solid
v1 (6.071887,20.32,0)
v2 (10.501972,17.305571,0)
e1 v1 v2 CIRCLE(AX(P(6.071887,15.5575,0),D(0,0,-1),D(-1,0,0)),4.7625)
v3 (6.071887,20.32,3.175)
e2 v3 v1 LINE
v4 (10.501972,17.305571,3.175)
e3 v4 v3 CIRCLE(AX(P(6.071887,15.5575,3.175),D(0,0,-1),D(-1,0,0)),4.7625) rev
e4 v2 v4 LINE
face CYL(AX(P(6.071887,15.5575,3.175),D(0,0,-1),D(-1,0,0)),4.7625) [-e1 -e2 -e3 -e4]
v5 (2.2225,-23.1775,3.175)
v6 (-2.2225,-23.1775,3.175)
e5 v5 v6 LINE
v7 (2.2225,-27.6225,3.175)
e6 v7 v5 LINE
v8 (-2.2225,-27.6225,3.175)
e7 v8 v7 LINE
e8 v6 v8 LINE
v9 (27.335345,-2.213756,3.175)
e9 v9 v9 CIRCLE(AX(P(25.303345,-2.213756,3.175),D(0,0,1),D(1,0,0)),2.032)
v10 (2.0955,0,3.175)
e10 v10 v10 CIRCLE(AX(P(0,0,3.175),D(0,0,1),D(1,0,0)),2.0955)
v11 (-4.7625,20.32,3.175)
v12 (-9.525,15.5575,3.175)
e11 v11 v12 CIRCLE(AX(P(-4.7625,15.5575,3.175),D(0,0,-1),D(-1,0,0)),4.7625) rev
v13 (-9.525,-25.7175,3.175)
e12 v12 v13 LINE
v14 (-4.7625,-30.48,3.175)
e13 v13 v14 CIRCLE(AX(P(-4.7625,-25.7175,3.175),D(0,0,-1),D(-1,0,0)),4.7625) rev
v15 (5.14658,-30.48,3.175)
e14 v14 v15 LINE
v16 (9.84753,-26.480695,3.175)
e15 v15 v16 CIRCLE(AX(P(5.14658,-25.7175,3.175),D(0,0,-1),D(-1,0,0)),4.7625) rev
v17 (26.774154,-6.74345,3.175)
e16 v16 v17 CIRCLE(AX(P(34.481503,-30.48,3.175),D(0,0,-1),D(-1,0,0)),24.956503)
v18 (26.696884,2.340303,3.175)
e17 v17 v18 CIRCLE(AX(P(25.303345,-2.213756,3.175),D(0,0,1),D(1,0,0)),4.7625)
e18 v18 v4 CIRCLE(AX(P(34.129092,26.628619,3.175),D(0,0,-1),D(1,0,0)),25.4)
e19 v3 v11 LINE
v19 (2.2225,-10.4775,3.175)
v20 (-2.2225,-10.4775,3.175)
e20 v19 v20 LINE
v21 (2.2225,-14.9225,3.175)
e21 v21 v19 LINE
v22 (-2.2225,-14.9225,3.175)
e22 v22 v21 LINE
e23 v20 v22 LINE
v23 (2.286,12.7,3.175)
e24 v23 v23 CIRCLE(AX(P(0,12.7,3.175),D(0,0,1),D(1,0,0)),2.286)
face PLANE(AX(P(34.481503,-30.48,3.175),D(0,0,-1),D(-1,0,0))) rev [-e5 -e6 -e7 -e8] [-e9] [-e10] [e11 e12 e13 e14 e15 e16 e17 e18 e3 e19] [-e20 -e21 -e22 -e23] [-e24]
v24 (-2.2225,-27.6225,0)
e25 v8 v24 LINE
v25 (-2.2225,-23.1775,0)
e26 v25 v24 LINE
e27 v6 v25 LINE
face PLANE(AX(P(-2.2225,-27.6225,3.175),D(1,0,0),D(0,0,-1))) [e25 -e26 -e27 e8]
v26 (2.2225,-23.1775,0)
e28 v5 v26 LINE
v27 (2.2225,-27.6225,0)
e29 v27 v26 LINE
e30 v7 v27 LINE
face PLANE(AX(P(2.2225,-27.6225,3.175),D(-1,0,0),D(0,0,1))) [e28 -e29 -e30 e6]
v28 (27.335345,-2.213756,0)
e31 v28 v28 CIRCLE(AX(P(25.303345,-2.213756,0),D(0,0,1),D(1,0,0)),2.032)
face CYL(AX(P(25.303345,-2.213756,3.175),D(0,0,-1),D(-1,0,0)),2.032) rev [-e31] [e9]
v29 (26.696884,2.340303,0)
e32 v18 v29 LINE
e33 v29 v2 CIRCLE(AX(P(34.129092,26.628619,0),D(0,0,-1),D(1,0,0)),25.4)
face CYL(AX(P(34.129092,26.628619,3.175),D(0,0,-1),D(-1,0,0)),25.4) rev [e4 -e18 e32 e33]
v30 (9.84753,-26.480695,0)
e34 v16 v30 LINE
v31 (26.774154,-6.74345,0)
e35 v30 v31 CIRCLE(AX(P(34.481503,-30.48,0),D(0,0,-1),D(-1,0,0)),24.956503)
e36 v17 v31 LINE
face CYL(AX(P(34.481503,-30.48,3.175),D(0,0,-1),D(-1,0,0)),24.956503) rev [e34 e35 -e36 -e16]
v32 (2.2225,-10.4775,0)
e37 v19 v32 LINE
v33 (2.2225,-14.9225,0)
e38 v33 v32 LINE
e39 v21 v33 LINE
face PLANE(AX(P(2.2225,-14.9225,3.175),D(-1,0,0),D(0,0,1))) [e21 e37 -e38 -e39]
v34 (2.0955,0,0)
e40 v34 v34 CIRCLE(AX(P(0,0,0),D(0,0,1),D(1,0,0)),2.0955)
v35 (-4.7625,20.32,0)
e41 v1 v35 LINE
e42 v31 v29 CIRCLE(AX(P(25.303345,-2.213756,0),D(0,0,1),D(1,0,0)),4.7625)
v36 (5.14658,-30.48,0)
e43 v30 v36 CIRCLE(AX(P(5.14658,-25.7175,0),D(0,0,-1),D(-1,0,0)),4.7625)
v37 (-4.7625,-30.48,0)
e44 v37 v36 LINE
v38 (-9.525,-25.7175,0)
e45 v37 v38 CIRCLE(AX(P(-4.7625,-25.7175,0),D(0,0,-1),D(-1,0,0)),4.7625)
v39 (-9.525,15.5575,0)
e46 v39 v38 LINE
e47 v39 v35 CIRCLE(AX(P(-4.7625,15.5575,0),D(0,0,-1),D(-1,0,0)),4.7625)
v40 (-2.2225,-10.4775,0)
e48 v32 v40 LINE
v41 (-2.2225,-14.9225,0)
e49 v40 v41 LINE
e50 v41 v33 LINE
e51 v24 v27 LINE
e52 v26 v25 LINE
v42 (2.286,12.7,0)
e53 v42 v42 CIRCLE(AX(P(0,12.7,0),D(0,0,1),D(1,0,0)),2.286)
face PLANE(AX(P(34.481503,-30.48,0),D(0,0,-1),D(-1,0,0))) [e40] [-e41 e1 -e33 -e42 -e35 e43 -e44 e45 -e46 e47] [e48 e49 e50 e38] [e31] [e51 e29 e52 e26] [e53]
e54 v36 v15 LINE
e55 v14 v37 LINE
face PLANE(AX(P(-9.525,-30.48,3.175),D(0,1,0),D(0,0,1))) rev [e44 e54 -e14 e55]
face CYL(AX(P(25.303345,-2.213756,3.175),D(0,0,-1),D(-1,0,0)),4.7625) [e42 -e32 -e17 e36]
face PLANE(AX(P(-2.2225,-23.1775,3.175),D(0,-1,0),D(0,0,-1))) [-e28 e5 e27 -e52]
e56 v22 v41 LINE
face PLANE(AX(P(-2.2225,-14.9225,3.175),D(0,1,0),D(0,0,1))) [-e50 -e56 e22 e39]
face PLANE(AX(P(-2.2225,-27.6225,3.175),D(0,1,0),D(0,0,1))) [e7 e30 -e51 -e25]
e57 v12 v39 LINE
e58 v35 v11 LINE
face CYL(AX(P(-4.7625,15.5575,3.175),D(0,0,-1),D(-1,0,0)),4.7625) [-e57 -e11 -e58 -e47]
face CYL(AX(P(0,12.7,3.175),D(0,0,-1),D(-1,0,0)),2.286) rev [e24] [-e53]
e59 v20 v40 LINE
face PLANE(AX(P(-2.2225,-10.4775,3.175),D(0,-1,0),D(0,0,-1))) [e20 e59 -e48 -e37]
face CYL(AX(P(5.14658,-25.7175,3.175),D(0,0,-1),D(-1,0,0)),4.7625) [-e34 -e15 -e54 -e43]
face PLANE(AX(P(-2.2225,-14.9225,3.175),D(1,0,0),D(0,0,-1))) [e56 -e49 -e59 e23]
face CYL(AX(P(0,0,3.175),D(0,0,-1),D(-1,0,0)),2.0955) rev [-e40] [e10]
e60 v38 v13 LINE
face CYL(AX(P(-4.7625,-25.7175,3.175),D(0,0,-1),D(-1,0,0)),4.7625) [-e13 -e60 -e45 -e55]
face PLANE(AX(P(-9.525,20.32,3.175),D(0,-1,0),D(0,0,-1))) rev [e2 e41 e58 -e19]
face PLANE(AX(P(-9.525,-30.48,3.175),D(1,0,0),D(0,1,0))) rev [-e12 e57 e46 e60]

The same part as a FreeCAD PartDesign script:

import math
import FreeCAD as App
import Part
import Sketcher
from FreeCAD import Vector
Q = App.Units.Quantity


def edges_at(feature, points):
    """Names of the edges that pass closest to the given points."""
    edges = feature.Shape.Edges
    near = lambda p: min(range(len(edges)), key=lambda i: edges[i].distToShape(Part.Vertex(*p))[0])
    return sorted({f"Edge{near(p) + 1}" for p in points})

doc = App.newDocument("Part")
body = doc.addObject("PartDesign::Body", "Body")

sketch1 = doc.addObject("Sketcher::SketchObject", "Sketch")
body.addObject(sketch1)
sketch1.AttachmentSupport = (doc.XY_Plane, [""])
sketch1.MapMode = "FlatFace"
sketch1.addGeometry([
    Part.LineSegment(Vector(-9.5, 20.3, 0), Vector(-9.5, -30.5, 0)),
    Part.LineSegment(Vector(-9.5, -30.5, 0), Vector(9.5, -30.5, 0)),
    Part.ArcOfCircle(Part.Circle(Vector(34.5, -30.5, 0), Vector(0, 0, 1), 25), math.radians(108), math.radians(180)),
    Part.ArcOfCircle(Part.Circle(Vector(25.3, -2.2, 0), Vector(0, 0, 1), 4.8), math.radians(-72), math.radians(73)),
    Part.ArcOfCircle(Part.Circle(Vector(34.1, 26.6, 0), Vector(0, 0, 1), 25.4), math.radians(-166), math.radians(-107)),
    Part.LineSegment(Vector(9.5, 20.3, 0), Vector(-9.5, 20.3, 0)),
    Part.LineSegment(Vector(-2.2, -27.6, 0), Vector(-2.2, -23.2, 0)),
    Part.LineSegment(Vector(-2.2, -23.2, 0), Vector(2.2, -23.2, 0)),
    Part.LineSegment(Vector(2.2, -23.2, 0), Vector(2.2, -27.6, 0)),
    Part.LineSegment(Vector(2.2, -27.6, 0), Vector(-2.2, -27.6, 0)),
    Part.LineSegment(Vector(-2.2, -14.9, 0), Vector(-2.2, -10.5, 0)),
    Part.LineSegment(Vector(-2.2, -10.5, 0), Vector(2.2, -10.5, 0)),
    Part.LineSegment(Vector(2.2, -10.5, 0), Vector(2.2, -14.9, 0)),
    Part.LineSegment(Vector(2.2, -14.9, 0), Vector(-2.2, -14.9, 0)),
    Part.Circle(Vector(25.3, -2.2, 0), Vector(0, 0, 1), 2),
    Part.Circle(Vector(0, 0, 0), Vector(0, 0, 1), 2.1),
    Part.Circle(Vector(0, 12.7, 0), Vector(0, 0, 1), 2.3),
], False)
sketch1.addConstraint([
    Sketcher.Constraint("Coincident", 0, 2, 1, 1),
    Sketcher.Constraint("Coincident", 1, 2, 2, 2),
    Sketcher.Constraint("Tangent", 2, 1, 3, 1),
    Sketcher.Constraint("Tangent", 3, 2, 4, 2),
    Sketcher.Constraint("Coincident", 4, 1, 5, 1),
    Sketcher.Constraint("Coincident", 5, 2, 0, 1),
    Sketcher.Constraint("Coincident", 6, 2, 7, 1),
    Sketcher.Constraint("Coincident", 7, 2, 8, 1),
    Sketcher.Constraint("Coincident", 8, 2, 9, 1),
    Sketcher.Constraint("Coincident", 9, 2, 6, 1),
    Sketcher.Constraint("Coincident", 10, 2, 11, 1),
    Sketcher.Constraint("Coincident", 11, 2, 12, 1),
    Sketcher.Constraint("Coincident", 12, 2, 13, 1),
    Sketcher.Constraint("Coincident", 13, 2, 10, 1),
    Sketcher.Constraint("Vertical", 0),
    Sketcher.Constraint("Horizontal", 1),
    Sketcher.Constraint("Horizontal", 5),
    Sketcher.Constraint("Vertical", 6),
    Sketcher.Constraint("Horizontal", 7),
    Sketcher.Constraint("Vertical", 8),
    Sketcher.Constraint("Horizontal", 9),
    Sketcher.Constraint("Vertical", 10),
    Sketcher.Constraint("Horizontal", 11),
    Sketcher.Constraint("Vertical", 12),
    Sketcher.Constraint("Horizontal", 13),
    Sketcher.Constraint("Coincident", 15, 3, -1, 1),
    Sketcher.Constraint("Coincident", 14, 3, 3, 3),
    Sketcher.Constraint("PointOnObject", 16, 3, -2),
    Sketcher.Constraint("Horizontal", 2, 3, 0, 2),
    Sketcher.Constraint("Vertical", 1, 2, 4, 1),
    Sketcher.Constraint("Vertical", 9, 2, 10, 2),
    Sketcher.Constraint("Vertical", 8, 2, 11, 2),
    Sketcher.Constraint("Equal", 13, 6),
    Sketcher.Constraint("Equal", 8, 10),
    Sketcher.Constraint("Radius", 4, Q("1 in")),
    Sketcher.Constraint("Diameter", 14, Q("0.16 in")),
    Sketcher.Constraint("Diameter", 16, Q("0.18 in")),
    Sketcher.Constraint("DistanceY", 0, 2, 0, 1, Q("2 in")),
    Sketcher.Constraint("Diameter", 15, Q("0.165 in")),
    Sketcher.Constraint("Radius", 3, Q("0.1875 in")),
    Sketcher.Constraint("DistanceX", 1, 1, 1, 2, Q("0.75 in")),
    Sketcher.Constraint("DistanceY", 2, 3, -1, 1, Q("1.2 in")),
    Sketcher.Constraint("DistanceY", -1, 1, 16, 3, Q("0.5 in")),
    Sketcher.Constraint("DistanceY", 6, 2, 10, 2, Q("0.5 in")),
    Sketcher.Constraint("DistanceX", 7, 1, 7, 2, Q("0.175 in")),
    Sketcher.Constraint("DistanceX", 0, 2, -1, 1, Q("0.375 in")),
    Sketcher.Constraint("DistanceX", 6, 2, -1, 1, Q("0.0875 in")),
    Sketcher.Constraint("DistanceY", 6, 2, -1, 1, Q("0.9125 in")),
    Sketcher.Constraint("Radius", 2, 24.956503),
    Sketcher.Constraint("DistanceX", -1, 1, 4, 3, 34.129092),
])
pad1 = doc.addObject("PartDesign::Pad", "Pad")
body.addObject(pad1)
pad1.Profile = sketch1
pad1.Length = Q("0.125 in")
doc.recompute()

fillet = doc.addObject("PartDesign::Fillet", "Fillet")
body.addObject(fillet)
fillet.Base = (pad1, edges_at(pad1, [
    (-9.525, -30.48, 1.587),
    (-9.525, 20.32, 1.587),
    (9.525, 20.32, 1.587),
    (9.525, -30.48, 1.587),
]))
fillet.Radius = Q("0.1875 in")

doc.recompute()
